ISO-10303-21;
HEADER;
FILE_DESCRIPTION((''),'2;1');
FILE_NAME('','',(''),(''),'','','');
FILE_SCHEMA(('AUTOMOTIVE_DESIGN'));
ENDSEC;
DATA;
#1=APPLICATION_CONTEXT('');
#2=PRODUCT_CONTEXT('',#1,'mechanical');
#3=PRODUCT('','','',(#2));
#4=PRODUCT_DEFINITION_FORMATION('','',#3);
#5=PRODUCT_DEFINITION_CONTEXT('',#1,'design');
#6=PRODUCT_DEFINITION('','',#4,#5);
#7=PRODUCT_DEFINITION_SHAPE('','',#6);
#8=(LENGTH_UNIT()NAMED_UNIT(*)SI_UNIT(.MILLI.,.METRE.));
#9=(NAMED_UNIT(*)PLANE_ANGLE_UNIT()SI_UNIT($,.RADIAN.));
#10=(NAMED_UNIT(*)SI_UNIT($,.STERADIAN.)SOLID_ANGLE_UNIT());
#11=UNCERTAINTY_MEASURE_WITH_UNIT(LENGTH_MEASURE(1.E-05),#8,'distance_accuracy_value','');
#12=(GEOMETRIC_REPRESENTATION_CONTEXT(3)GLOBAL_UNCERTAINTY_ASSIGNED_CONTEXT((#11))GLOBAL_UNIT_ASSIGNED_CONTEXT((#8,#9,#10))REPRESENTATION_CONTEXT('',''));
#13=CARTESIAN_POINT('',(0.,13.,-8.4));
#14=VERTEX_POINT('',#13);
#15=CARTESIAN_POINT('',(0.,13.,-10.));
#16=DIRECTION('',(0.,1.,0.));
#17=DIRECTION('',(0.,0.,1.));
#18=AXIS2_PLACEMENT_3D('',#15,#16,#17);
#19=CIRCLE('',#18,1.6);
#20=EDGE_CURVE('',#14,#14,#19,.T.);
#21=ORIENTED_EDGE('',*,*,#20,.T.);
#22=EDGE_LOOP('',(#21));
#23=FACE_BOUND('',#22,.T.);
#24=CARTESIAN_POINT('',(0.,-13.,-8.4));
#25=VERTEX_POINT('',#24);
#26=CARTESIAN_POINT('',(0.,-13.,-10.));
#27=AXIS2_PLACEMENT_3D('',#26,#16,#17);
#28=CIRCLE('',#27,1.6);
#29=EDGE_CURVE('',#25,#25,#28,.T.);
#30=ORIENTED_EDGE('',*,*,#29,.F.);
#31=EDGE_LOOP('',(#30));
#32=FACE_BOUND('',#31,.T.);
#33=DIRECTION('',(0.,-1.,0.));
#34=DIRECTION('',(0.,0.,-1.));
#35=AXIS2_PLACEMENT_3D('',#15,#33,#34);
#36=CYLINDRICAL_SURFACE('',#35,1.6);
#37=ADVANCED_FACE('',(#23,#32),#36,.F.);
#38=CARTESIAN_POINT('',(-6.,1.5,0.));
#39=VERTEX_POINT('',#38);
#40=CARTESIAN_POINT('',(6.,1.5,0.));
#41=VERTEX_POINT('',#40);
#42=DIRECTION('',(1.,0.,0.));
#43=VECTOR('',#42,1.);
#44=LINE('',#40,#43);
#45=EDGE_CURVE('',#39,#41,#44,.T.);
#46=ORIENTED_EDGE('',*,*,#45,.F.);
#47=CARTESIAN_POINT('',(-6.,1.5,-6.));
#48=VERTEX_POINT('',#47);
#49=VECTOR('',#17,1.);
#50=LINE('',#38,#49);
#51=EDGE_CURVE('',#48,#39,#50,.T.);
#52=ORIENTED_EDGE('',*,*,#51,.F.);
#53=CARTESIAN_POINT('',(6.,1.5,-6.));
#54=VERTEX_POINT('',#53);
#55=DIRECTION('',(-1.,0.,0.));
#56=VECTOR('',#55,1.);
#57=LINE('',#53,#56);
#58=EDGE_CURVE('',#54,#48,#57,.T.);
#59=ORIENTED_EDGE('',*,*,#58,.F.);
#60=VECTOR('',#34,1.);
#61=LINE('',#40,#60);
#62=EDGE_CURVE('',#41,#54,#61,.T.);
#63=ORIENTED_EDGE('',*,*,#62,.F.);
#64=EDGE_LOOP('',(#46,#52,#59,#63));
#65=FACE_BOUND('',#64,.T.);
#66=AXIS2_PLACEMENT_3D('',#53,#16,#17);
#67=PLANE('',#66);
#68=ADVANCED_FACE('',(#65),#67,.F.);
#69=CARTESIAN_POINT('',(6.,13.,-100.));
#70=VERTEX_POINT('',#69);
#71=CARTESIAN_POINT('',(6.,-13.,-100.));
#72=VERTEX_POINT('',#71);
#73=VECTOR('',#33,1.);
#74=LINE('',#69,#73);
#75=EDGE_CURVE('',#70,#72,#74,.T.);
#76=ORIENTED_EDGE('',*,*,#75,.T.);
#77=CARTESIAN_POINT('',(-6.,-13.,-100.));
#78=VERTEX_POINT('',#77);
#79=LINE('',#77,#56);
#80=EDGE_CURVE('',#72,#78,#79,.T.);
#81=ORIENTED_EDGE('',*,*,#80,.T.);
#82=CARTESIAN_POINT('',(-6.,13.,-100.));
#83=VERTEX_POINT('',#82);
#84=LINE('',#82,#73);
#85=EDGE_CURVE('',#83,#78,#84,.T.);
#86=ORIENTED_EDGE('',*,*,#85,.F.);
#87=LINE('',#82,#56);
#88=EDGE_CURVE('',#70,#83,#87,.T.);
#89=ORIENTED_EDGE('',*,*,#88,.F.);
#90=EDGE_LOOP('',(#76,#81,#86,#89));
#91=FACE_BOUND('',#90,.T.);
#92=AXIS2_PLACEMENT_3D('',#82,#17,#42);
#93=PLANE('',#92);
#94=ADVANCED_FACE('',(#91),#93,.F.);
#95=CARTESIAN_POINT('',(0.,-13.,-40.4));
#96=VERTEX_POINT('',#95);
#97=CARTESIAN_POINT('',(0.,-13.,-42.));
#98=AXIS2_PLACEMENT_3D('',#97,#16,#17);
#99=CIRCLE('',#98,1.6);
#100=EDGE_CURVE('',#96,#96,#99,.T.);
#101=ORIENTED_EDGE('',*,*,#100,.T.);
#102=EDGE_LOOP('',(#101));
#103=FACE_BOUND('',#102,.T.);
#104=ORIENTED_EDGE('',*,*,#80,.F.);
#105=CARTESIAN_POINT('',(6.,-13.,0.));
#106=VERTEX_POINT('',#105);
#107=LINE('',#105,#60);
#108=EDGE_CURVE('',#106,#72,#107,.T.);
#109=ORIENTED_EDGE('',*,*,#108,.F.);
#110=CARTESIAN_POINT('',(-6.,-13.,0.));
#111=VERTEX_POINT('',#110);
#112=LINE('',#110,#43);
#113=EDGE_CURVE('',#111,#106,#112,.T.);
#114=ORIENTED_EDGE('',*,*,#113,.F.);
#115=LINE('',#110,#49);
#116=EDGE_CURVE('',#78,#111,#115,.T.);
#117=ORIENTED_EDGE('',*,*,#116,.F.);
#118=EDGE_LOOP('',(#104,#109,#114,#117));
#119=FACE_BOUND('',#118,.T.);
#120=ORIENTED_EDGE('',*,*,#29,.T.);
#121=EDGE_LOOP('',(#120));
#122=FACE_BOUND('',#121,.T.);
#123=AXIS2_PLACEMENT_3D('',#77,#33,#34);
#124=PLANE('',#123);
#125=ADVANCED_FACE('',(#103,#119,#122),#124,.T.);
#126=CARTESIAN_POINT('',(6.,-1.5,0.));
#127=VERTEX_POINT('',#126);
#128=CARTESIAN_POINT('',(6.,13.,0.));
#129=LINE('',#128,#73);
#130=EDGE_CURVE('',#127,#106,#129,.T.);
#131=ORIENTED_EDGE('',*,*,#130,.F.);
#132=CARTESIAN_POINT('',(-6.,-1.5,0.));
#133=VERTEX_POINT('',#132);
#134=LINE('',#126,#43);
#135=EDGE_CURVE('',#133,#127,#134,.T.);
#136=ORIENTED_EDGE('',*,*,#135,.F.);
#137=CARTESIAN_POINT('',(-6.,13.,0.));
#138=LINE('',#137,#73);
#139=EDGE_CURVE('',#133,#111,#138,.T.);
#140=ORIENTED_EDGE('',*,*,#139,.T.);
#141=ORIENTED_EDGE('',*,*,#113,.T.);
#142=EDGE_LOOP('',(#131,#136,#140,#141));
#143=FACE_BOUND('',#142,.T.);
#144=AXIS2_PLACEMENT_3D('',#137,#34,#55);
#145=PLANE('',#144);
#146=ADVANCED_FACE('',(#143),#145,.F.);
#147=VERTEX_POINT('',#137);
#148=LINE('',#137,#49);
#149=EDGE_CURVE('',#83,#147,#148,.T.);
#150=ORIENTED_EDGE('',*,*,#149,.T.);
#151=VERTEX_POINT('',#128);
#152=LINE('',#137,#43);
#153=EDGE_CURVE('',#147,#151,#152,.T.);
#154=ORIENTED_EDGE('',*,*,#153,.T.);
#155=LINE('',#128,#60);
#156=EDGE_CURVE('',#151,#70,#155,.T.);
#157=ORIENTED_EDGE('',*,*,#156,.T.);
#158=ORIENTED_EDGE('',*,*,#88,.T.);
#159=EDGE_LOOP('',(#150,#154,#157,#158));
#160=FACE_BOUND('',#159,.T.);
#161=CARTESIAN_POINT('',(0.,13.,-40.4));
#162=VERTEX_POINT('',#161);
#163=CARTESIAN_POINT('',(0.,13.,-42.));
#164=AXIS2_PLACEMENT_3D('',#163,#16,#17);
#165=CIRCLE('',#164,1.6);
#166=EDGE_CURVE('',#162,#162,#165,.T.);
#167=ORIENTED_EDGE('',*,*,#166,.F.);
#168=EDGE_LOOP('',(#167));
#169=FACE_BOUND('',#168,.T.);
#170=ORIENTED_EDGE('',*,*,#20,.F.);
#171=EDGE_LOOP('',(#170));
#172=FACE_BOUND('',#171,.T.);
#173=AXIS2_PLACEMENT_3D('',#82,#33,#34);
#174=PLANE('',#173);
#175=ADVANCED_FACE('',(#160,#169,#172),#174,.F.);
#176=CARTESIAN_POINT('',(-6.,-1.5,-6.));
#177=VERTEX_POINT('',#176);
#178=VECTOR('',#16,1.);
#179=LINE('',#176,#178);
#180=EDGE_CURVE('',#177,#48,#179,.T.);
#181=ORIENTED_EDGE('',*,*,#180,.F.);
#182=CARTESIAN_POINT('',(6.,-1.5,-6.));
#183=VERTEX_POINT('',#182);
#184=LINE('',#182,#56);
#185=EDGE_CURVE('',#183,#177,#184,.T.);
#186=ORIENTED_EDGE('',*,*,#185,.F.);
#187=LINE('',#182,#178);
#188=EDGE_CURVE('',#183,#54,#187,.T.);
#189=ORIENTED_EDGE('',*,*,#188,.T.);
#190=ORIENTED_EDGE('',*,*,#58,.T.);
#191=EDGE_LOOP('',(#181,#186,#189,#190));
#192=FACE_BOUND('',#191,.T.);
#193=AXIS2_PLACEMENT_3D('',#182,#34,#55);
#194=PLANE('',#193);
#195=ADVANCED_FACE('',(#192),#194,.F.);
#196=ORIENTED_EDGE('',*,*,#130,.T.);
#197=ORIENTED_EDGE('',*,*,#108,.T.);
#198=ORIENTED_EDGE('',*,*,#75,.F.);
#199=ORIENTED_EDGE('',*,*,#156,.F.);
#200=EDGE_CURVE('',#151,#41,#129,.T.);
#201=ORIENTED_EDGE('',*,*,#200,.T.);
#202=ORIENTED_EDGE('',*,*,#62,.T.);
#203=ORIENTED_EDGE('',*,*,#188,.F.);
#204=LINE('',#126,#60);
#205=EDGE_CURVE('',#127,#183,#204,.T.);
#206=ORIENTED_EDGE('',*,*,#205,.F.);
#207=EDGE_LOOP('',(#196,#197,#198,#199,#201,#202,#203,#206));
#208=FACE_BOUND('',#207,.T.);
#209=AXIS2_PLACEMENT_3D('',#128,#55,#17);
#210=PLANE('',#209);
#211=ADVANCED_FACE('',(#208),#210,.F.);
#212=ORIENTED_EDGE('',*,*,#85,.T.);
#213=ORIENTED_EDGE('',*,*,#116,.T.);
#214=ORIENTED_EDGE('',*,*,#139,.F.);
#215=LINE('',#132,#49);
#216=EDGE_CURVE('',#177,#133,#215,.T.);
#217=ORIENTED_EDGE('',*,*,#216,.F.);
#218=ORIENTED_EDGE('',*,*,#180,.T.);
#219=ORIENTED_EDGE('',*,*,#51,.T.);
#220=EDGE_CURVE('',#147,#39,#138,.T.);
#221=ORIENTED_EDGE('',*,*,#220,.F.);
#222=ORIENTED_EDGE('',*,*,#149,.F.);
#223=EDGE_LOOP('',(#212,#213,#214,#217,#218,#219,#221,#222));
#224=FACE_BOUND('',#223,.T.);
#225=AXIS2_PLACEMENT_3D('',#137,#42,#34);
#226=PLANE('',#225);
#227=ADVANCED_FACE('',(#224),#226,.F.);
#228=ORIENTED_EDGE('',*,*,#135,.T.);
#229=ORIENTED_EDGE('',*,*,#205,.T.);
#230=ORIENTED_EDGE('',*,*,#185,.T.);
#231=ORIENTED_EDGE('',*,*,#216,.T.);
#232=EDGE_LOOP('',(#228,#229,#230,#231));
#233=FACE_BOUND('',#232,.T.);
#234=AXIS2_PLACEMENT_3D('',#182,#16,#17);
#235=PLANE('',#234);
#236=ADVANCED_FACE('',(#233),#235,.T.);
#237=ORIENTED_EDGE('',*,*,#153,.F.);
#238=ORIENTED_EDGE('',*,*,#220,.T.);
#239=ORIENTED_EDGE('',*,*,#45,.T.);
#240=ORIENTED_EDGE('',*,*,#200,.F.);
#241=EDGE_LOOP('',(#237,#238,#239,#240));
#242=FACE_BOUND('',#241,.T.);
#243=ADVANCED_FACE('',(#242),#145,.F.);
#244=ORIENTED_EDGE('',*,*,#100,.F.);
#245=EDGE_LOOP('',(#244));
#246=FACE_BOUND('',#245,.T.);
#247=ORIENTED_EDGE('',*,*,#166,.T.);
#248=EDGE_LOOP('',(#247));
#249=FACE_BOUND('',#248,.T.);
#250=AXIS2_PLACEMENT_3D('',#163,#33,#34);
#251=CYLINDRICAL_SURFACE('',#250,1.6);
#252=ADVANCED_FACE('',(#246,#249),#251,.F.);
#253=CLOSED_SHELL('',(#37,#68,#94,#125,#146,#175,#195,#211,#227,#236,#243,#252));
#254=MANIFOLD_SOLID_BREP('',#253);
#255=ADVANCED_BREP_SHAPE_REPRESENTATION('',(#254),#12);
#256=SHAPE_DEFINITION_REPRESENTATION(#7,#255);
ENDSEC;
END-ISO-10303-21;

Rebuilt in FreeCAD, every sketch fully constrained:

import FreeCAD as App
import Part
import Sketcher

V = App.Vector

doc = App.newDocument("Part")
body = doc.addObject("PartDesign::Body", "Body")

sketch1 = body.newObject("Sketcher::SketchObject", "Sketch")
sketch1.AttachmentSupport = (doc.getObject("XZ_Plane"), [""])
sketch1.MapMode = "FlatFace"
sketch1.addGeometry(Part.LineSegment(V(-6, -100, 0), V(-6, 0, 0)), False)
sketch1.addGeometry(Part.LineSegment(V(-6, 0, 0), V(6, 0, 0)), False)
sketch1.addGeometry(Part.LineSegment(V(6, 0, 0), V(6, -100, 0)), False)
sketch1.addGeometry(Part.LineSegment(V(6, -100, 0), V(-6, -100, 0)), False)
sketch1.addGeometry(Part.Circle(V(0, -10, 0), V(0, 0, 1), 1.6), False)
sketch1.addGeometry(Part.Circle(V(0, -42, 0), V(0, 0, 1), 1.6), False)
sketch1.addConstraint(Sketcher.Constraint("Coincident", 0, 2, 1, 1))
sketch1.addConstraint(Sketcher.Constraint("Coincident", 1, 2, 2, 1))
sketch1.addConstraint(Sketcher.Constraint("Coincident", 2, 2, 3, 1))
sketch1.addConstraint(Sketcher.Constraint("Coincident", 3, 2, 0, 1))
sketch1.addConstraint(Sketcher.Constraint("Vertical", 0))
sketch1.addConstraint(Sketcher.Constraint("Horizontal", 1))
sketch1.addConstraint(Sketcher.Constraint("Vertical", 2))
sketch1.addConstraint(Sketcher.Constraint("Horizontal", 3))
sketch1.addConstraint(Sketcher.Constraint("Equal", 4, 5))
sketch1.addConstraint(Sketcher.Constraint("Symmetric", 0, 2, 1, 2, -1, 1))
sketch1.addConstraint(Sketcher.Constraint("PointOnObject", 4, 3, -2))
sketch1.addConstraint(Sketcher.Constraint("PointOnObject", 5, 3, -2))
sketch1.addConstraint(Sketcher.Constraint("Diameter", 4, 3.2))
sketch1.addConstraint(Sketcher.Constraint("DistanceX", 1, 1, 1, 2, 12.0))
sketch1.addConstraint(Sketcher.Constraint("DistanceY", 0, 1, 0, 2, 100.0))
sketch1.addConstraint(Sketcher.Constraint("DistanceY", 4, 3, -1, 1, 10.0))
sketch1.addConstraint(Sketcher.Constraint("DistanceY", 5, 3, -1, 1, 42.0))
pad1 = body.newObject("PartDesign::Pad", "Pad")
pad1.Profile = sketch1
pad1.Length = 26
pad1.Midplane = True

sketch2 = body.newObject("Sketcher::SketchObject", "Sketch001")
sketch2.AttachmentSupport = (doc.getObject("XZ_Plane"), [""])
sketch2.MapMode = "FlatFace"
sketch2.addGeometry(Part.LineSegment(V(-6, -6, 0), V(-6, 0, 0)), False)
sketch2.addGeometry(Part.LineSegment(V(-6, 0, 0), V(6, 0, 0)), False)
sketch2.addGeometry(Part.LineSegment(V(6, 0, 0), V(6, -6, 0)), False)
sketch2.addGeometry(Part.LineSegment(V(6, -6, 0), V(-6, -6, 0)), False)
sketch2.addConstraint(Sketcher.Constraint("Coincident", 0, 2, 1, 1))
sketch2.addConstraint(Sketcher.Constraint("Coincident", 1, 2, 2, 1))
sketch2.addConstraint(Sketcher.Constraint("Coincident", 2, 2, 3, 1))
sketch2.addConstraint(Sketcher.Constraint("Coincident", 3, 2, 0, 1))
sketch2.addConstraint(Sketcher.Constraint("Vertical", 0))
sketch2.addConstraint(Sketcher.Constraint("Horizontal", 1))
sketch2.addConstraint(Sketcher.Constraint("Vertical", 2))
sketch2.addConstraint(Sketcher.Constraint("Horizontal", 3))
sketch2.addConstraint(Sketcher.Constraint("Symmetric", 0, 2, 1, 2, -1, 1))
sketch2.addConstraint(Sketcher.Constraint("DistanceX", 1, 1, 1, 2, 12.0))
sketch2.addConstraint(Sketcher.Constraint("DistanceY", 0, 1, 0, 2, 6.0))
pocket1 = body.newObject("PartDesign::Pocket", "Pocket")
pocket1.Profile = sketch2
pocket1.Length = 3
pocket1.Midplane = True

doc.recompute()
